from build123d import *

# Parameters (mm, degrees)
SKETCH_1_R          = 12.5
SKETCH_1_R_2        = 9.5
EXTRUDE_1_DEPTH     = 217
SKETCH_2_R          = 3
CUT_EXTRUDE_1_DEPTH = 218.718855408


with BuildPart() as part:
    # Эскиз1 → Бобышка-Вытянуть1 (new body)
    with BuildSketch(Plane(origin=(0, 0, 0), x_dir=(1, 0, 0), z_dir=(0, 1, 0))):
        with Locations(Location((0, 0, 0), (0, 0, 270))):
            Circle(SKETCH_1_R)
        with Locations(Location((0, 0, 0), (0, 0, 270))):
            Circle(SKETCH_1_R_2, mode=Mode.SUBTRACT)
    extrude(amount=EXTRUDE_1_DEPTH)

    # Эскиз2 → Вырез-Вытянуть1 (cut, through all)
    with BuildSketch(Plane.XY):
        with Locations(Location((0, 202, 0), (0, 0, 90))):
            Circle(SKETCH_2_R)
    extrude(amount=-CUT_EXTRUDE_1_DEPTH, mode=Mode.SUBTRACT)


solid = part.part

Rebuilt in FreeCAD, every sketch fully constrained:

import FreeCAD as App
import Part
import Sketcher
from FreeCAD import Vector
Q = App.Units.Quantity

doc = App.newDocument("Part")
body = doc.addObject("PartDesign::Body", "Body")

# Sketch on XZ plane
sketch1 = body.newObject("Sketcher::SketchObject", "Sketch")
sketch1.AttachmentSupport = (doc.getObject("XZ_Plane"), [""])
sketch1.MapMode = "FlatFace"
sketch1.addGeometry(Part.Circle(Vector(0, 0, 0), Vector(0, 0, 1), 12), False)
sketch1.addGeometry(Part.Circle(Vector(0, 0, 0), Vector(0, 0, 1), 10), False)
sketch1.addConstraint(Sketcher.Constraint("Coincident", 0, 3, -1, 1))
sketch1.addConstraint(Sketcher.Constraint("Coincident", 1, 3, -1, 1))
sketch1.addConstraint(Sketcher.Constraint("Diameter", 0, Q("25 mm")))
sketch1.addConstraint(Sketcher.Constraint("Diameter", 1, Q("19 mm")))
pad1 = body.newObject("PartDesign::Pad", "Pad")
pad1.Profile = sketch1
pad1.Length = 217
pad1.Reversed = True

# Sketch on XY plane
sketch2 = body.newObject("Sketcher::SketchObject", "Sketch001")
sketch2.AttachmentSupport = (doc.getObject("XY_Plane"), [""])
sketch2.MapMode = "FlatFace"
sketch2.addGeometry(Part.Circle(Vector(0, 202, 0), Vector(0, 0, 1), 3), False)
sketch2.addConstraint(Sketcher.Constraint("PointOnObject", 0, 3, -2))
sketch2.addConstraint(Sketcher.Constraint("Diameter", 0, Q("6 mm")))
sketch2.addConstraint(Sketcher.Constraint("DistanceY", -1, 1, 0, 3, Q("202 mm")))
pocket1 = body.newObject("PartDesign::Pocket", "Pocket")
pocket1.Profile = sketch2
pocket1.Type = "ThroughAll"

doc.recompute()
